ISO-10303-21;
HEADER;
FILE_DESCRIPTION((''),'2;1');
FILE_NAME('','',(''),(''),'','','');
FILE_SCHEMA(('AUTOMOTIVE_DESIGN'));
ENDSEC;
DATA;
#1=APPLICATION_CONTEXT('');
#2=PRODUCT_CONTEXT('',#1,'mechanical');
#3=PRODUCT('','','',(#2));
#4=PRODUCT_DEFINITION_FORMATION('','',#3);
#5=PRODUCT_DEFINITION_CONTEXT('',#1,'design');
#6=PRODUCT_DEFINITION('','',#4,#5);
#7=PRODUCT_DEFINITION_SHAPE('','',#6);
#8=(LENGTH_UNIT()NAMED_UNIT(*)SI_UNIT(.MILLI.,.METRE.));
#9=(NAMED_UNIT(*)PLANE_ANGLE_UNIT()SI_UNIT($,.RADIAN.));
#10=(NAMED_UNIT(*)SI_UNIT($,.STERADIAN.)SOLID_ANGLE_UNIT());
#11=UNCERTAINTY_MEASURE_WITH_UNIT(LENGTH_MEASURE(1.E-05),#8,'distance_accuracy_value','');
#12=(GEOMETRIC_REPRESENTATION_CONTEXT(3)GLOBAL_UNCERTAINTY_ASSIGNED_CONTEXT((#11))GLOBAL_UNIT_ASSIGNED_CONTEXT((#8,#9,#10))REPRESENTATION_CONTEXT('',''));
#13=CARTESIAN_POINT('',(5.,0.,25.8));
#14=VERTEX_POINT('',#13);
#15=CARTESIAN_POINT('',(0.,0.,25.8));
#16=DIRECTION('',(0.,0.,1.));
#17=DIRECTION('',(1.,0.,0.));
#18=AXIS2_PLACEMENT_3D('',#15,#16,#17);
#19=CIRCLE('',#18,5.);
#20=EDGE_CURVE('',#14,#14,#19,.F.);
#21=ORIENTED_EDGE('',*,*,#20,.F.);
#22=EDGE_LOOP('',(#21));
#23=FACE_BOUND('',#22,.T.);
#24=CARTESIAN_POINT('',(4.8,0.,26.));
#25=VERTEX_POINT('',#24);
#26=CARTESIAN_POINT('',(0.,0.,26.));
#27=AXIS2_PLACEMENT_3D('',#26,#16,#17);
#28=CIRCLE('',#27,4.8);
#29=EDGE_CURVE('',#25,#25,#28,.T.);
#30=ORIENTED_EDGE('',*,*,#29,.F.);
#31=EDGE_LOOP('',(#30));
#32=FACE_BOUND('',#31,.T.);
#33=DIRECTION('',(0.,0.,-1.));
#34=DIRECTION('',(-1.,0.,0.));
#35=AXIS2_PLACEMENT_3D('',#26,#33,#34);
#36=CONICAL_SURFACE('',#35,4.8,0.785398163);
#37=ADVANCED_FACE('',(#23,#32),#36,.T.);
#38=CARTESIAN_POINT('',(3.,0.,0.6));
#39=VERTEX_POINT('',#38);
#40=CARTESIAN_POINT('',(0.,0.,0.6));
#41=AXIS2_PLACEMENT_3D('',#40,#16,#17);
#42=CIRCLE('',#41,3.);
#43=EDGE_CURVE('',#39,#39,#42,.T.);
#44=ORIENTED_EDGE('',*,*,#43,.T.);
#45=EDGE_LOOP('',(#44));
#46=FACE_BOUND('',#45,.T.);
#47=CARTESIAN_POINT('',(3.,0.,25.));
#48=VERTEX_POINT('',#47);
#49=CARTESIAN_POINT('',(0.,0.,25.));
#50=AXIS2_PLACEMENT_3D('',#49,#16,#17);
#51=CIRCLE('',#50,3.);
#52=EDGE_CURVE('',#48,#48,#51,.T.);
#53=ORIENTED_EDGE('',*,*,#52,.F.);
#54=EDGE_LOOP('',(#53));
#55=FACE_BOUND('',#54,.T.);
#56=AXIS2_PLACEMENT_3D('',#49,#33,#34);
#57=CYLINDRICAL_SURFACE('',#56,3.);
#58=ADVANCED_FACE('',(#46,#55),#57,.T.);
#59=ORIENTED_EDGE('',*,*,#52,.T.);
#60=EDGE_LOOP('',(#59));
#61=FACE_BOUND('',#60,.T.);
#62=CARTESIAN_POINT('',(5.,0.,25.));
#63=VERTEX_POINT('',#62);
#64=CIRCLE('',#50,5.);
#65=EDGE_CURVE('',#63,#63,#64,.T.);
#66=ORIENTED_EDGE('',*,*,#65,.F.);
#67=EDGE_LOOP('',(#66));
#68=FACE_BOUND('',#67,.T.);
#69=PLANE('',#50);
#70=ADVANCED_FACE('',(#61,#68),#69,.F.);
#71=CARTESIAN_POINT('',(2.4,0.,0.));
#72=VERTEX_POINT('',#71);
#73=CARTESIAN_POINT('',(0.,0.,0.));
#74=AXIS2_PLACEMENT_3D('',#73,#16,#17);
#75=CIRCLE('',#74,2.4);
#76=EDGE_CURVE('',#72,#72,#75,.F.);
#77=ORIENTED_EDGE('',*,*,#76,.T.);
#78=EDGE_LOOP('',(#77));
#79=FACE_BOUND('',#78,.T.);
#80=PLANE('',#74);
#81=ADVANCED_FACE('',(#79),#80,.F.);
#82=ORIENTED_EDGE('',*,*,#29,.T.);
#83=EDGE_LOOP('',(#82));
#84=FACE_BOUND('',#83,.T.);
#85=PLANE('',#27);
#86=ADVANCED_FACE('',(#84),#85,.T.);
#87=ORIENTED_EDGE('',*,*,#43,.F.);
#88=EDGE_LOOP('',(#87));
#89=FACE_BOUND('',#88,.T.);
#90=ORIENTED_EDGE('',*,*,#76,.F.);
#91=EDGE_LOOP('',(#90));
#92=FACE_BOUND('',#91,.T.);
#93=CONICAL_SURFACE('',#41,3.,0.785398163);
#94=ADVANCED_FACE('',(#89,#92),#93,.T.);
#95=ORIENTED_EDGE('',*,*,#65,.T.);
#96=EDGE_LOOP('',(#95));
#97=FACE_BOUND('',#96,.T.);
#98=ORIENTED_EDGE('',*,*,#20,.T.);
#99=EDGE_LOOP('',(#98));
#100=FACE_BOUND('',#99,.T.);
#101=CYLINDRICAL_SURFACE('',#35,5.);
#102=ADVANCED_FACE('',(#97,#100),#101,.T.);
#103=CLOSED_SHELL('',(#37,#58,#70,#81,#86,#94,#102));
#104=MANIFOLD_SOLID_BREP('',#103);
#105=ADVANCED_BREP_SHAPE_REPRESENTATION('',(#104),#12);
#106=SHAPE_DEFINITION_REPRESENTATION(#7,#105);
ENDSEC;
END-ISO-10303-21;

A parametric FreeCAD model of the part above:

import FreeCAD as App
import Part
import Sketcher


def edges_at(feature, points):
    """Names of the edges that pass closest to the given points."""
    edges = feature.Shape.Edges
    near = lambda p: min(range(len(edges)), key=lambda i: edges[i].distToShape(Part.Vertex(*p))[0])
    return sorted({f"Edge{near(p) + 1}" for p in points})

doc = App.newDocument("Part")
body = doc.addObject("PartDesign::Body", "Body")

# Sketch on XY plane
sketch1 = body.newObject("Sketcher::SketchObject", "Sketch")
sketch1.AttachmentSupport = (doc.getObject("XY_Plane"), [""])
sketch1.MapMode = "FlatFace"
sketch1.addGeometry(Part.Circle(App.Vector(0, 0, 0), App.Vector(0, 0, 1), 3), False)
sketch1.addConstraint([
    Sketcher.Constraint("Coincident", 0, 3, -1, 1),
    Sketcher.Constraint("Diameter", 0, 6.0),
])
pad1 = body.newObject("PartDesign::Pad", "Pad")
pad1.Profile = sketch1
pad1.Length = 25

# Sketch on XY plane
sketch2 = body.newObject("Sketcher::SketchObject", "Sketch001")
sketch2.AttachmentSupport = (doc.getObject("XY_Plane"), [""])
sketch2.MapMode = "FlatFace"
sketch2.AttachmentOffset = App.Placement(App.Vector(0, 0, 25), App.Rotation())
sketch2.addGeometry(Part.Circle(App.Vector(0, 0, 0), App.Vector(0, 0, 1), 5), False)
sketch2.addConstraint([
    Sketcher.Constraint("Coincident", 0, 3, -1, 1),
    Sketcher.Constraint("Diameter", 0, 10.0),
])
pad2 = body.newObject("PartDesign::Pad", "Pad001")
pad2.Profile = sketch2
pad2.Length = 1
doc.recompute()

chamfer = body.newObject("PartDesign::Chamfer", "Chamfer")
chamfer.Base = (pad2, edges_at(pad2, [(-3, 0, 0)]))
chamfer.Size = 0.6
doc.recompute()

chamfer2 = body.newObject("PartDesign::Chamfer", "Chamfer001")
chamfer2.Base = (chamfer, edges_at(chamfer, [(-5, 0, 26)]))
chamfer2.Size = 0.2

doc.recompute()
